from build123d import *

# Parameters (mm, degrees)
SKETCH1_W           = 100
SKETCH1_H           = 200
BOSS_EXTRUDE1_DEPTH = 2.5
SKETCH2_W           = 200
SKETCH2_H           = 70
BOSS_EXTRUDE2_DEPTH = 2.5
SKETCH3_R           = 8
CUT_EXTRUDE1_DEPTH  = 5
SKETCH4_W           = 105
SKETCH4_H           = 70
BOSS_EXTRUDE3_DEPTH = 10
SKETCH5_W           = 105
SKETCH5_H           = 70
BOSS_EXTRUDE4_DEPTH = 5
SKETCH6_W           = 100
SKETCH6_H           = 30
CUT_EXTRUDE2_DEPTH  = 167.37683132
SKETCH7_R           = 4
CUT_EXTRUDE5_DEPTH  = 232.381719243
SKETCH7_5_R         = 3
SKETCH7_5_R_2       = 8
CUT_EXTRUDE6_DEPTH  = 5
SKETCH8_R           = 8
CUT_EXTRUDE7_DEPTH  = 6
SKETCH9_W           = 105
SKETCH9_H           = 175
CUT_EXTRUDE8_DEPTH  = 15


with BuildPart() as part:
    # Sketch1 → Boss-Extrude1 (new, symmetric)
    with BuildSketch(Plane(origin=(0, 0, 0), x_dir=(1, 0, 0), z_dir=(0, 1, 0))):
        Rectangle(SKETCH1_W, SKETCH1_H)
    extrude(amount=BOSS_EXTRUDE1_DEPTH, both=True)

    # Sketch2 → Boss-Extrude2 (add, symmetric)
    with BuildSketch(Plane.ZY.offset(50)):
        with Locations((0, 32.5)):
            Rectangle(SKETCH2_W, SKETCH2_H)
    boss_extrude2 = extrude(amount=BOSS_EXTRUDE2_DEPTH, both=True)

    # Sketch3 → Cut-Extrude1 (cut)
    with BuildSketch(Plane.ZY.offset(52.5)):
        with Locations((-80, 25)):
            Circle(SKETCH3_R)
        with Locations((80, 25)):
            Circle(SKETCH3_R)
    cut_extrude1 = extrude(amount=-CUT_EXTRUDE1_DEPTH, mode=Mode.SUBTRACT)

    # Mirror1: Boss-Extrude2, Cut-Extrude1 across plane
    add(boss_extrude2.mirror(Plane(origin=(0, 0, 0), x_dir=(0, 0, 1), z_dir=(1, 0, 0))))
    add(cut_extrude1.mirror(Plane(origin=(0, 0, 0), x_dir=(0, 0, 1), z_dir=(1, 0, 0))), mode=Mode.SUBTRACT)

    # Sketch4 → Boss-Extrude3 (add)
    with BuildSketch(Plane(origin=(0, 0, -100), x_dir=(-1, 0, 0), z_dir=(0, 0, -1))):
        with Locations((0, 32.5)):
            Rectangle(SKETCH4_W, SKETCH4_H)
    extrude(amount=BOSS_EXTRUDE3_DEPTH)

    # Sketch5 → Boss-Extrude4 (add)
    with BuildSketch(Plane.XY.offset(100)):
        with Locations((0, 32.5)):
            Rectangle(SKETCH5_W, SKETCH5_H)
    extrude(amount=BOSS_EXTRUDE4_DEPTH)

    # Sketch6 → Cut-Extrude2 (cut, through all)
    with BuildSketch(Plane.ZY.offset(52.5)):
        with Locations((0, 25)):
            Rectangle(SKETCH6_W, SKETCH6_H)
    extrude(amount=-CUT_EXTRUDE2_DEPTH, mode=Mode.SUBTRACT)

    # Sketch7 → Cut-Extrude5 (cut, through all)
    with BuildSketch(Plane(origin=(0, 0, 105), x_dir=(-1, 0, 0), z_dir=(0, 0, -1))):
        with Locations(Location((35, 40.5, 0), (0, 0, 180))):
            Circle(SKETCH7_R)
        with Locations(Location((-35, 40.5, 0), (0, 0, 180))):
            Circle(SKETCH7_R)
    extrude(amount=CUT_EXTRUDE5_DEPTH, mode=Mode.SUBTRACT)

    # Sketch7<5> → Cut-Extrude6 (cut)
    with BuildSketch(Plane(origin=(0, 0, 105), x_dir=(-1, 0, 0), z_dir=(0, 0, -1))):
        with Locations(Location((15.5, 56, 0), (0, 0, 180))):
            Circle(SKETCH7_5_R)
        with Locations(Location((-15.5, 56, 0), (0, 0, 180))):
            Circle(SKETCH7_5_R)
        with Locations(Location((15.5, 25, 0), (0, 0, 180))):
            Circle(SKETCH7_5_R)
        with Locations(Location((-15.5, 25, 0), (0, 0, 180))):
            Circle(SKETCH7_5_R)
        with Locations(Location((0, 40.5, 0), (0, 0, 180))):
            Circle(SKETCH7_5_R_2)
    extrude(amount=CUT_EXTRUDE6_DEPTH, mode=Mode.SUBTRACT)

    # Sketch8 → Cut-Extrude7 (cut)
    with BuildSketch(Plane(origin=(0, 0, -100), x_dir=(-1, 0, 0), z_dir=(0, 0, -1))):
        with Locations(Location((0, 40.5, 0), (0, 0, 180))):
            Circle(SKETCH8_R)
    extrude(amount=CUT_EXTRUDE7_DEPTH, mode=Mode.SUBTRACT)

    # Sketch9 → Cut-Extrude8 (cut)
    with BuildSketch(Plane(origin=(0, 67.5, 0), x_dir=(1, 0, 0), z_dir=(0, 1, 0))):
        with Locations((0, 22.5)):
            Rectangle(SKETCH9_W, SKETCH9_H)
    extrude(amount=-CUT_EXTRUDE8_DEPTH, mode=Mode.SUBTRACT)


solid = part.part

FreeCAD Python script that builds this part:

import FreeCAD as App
import Part
import Sketcher
from FreeCAD import Vector

doc = App.newDocument("Part")
params = doc.addObject("Spreadsheet::Sheet", "Params")
for row, (alias, value) in enumerate([
    ("sketch1_width", "100 mm"),
    ("sketch1_height", "200 mm"),
    ("pad1_length", "5 mm"),
    ("sketch2_width", "70 mm"),
    ("sketch2_height", "200 mm"),
    ("pad2_length", "5 mm"),
    ("sketch3_diameter", "16 mm"),
    ("pocket1_length", "5 mm"),
    ("sketch4_width", "105 mm"),
    ("sketch4_height", "70 mm"),
    ("pad3_length", "10 mm"),
    ("sketch5_width", "105 mm"),
    ("sketch5_height", "70 mm"),
    ("pad4_length", "5 mm"),
    ("sketch6_width", "30 mm"),
    ("sketch6_height", "100 mm"),
    ("sketch7_diameter", "8 mm"),
    ("sketch8_diameter", "6 mm"),
    ("sketch8_diameter2", "16 mm"),
    ("pocket4_length", "5 mm"),
    ("sketch9_diameter", "16 mm"),
    ("pocket5_length", "6 mm"),
    ("sketch10_width", "105 mm"),
    ("sketch10_height", "175 mm"),
    ("pocket6_length", "15 mm"),
], start=1):
    params.set(f"A{row}", alias)
    params.set(f"B{row}", "=" + value)
    params.setAlias(f"B{row}", alias)

body = doc.addObject("PartDesign::Body", "Body")

# Sketch on XZ plane
sketch1 = doc.addObject("Sketcher::SketchObject", "Sketch")
body.addObject(sketch1)
sketch1.AttachmentSupport = (doc.XZ_Plane, [""])
sketch1.MapMode = "FlatFace"
sketch1.addGeometry(Part.LineSegment(Vector(-50, -100, 0), Vector(-50, 100, 0)), False)
sketch1.addGeometry(Part.LineSegment(Vector(-50, 100, 0), Vector(50, 100, 0)), False)
sketch1.addGeometry(Part.LineSegment(Vector(50, 100, 0), Vector(50, -100, 0)), False)
sketch1.addGeometry(Part.LineSegment(Vector(50, -100, 0), Vector(-50, -100, 0)), False)
sketch1.addConstraint(Sketcher.Constraint("Coincident", 0, 2, 1, 1))
sketch1.addConstraint(Sketcher.Constraint("Coincident", 1, 2, 2, 1))
sketch1.addConstraint(Sketcher.Constraint("Coincident", 2, 2, 3, 1))
sketch1.addConstraint(Sketcher.Constraint("Coincident", 3, 2, 0, 1))
sketch1.addConstraint(Sketcher.Constraint("Vertical", 0))
sketch1.addConstraint(Sketcher.Constraint("Horizontal", 1))
sketch1.addConstraint(Sketcher.Constraint("Vertical", 2))
sketch1.addConstraint(Sketcher.Constraint("Horizontal", 3))
sketch1.addConstraint(Sketcher.Constraint("Symmetric", 0, 2, 2, 2, -1, 1))
sketch1.addConstraint(Sketcher.Constraint("DistanceX", 1, 1, 1, 2, 100.0))
sketch1.addConstraint(Sketcher.Constraint("DistanceY", 0, 1, 0, 2, 200.0))
sketch1.setExpression("Constraints[9]", "Params.sketch1_width")
sketch1.setExpression("Constraints[10]", "Params.sketch1_height")
pad1 = doc.addObject("PartDesign::Pad", "Pad")
body.addObject(pad1)
pad1.Profile = sketch1
pad1.setExpression("Length", "Params.pad1_length")
pad1.Midplane = True

# Sketch on YZ plane
sketch2 = doc.addObject("Sketcher::SketchObject", "Sketch001")
body.addObject(sketch2)
sketch2.AttachmentSupport = (doc.YZ_Plane, [""])
sketch2.MapMode = "FlatFace"
sketch2.AttachmentOffset = App.Placement(Vector(0, 0, -50), App.Rotation())
sketch2.addGeometry(Part.LineSegment(Vector(68, -100, 0), Vector(-2, -100, 0)), False)
sketch2.addGeometry(Part.LineSegment(Vector(-2, -100, 0), Vector(-2, 100, 0)), False)
sketch2.addGeometry(Part.LineSegment(Vector(-2, 100, 0), Vector(68, 100, 0)), False)
sketch2.addGeometry(Part.LineSegment(Vector(68, 100, 0), Vector(68, -100, 0)), False)
sketch2.addConstraint(Sketcher.Constraint("Coincident", 0, 2, 1, 1))
sketch2.addConstraint(Sketcher.Constraint("Coincident", 1, 2, 2, 1))
sketch2.addConstraint(Sketcher.Constraint("Coincident", 2, 2, 3, 1))
sketch2.addConstraint(Sketcher.Constraint("Coincident", 3, 2, 0, 1))
sketch2.addConstraint(Sketcher.Constraint("Horizontal", 0))
sketch2.addConstraint(Sketcher.Constraint("Vertical", 1))
sketch2.addConstraint(Sketcher.Constraint("Horizontal", 2))
sketch2.addConstraint(Sketcher.Constraint("Vertical", 3))
sketch2.addConstraint(Sketcher.Constraint("DistanceX", 0, 2, 0, 1, 70.0))
sketch2.addConstraint(Sketcher.Constraint("DistanceY", 1, 1, 1, 2, 200.0))
sketch2.addConstraint(Sketcher.Constraint("DistanceY", 0, 2, -1, 1, 100.0))
sketch2.addConstraint(Sketcher.Constraint("DistanceX", 0, 2, -1, 1, 2.5))
sketch2.setExpression("Constraints[8]", "Params.sketch2_width")
sketch2.setExpression("Constraints[9]", "Params.sketch2_height")
pad2 = doc.addObject("PartDesign::Pad", "Pad001")
body.addObject(pad2)
pad2.Profile = sketch2
pad2.setExpression("Length", "Params.pad2_length")
pad2.Midplane = True

# Sketch on YZ plane
sketch3 = doc.addObject("Sketcher::SketchObject", "Sketch002")
body.addObject(sketch3)
sketch3.AttachmentSupport = (doc.YZ_Plane, [""])
sketch3.MapMode = "FlatFace"
sketch3.AttachmentOffset = App.Placement(Vector(0, 0, -52.5), App.Rotation())
sketch3.addGeometry(Part.Circle(Vector(25, -80, 0), Vector(0, 0, 1), 8), False)
sketch3.addGeometry(Part.Circle(Vector(25, 80, 0), Vector(0, 0, 1), 8), False)
sketch3.addConstraint(Sketcher.Constraint("Equal", 0, 1))
sketch3.addConstraint(Sketcher.Constraint("Symmetric", 0, 3, 1, 3, -1))
sketch3.addConstraint(Sketcher.Constraint("Diameter", 0, 16.0))
sketch3.addConstraint(Sketcher.Constraint("DistanceX", -1, 1, 0, 3, 25.0))
sketch3.addConstraint(Sketcher.Constraint("DistanceY", 0, 3, -1, 1, 80.0))
sketch3.setExpression("Constraints[2]", "Params.sketch3_diameter")
pocket1 = doc.addObject("PartDesign::Pocket", "Pocket")
body.addObject(pocket1)
pocket1.Profile = sketch3
pocket1.setExpression("Length", "Params.pocket1_length")
pocket1.Reversed = True
doc.recompute()

mirrored = doc.addObject("PartDesign::Mirrored", "Mirrored")
body.addObject(mirrored)
mirrored.Originals = [pad2, pocket1]
mirrored.MirrorPlane = (doc.YZ_Plane, [""])
body.Tip = mirrored

# Sketch on XY plane
sketch4 = doc.addObject("Sketcher::SketchObject", "Sketch003")
body.addObject(sketch4)
sketch4.AttachmentSupport = (doc.XY_Plane, [""])
sketch4.MapMode = "FlatFace"
sketch4.AttachmentOffset = App.Placement(Vector(0, 0, -100), App.Rotation())
sketch4.addGeometry(Part.LineSegment(Vector(52, 68, 0), Vector(52, -2, 0)), False)
sketch4.addGeometry(Part.LineSegment(Vector(52, -2, 0), Vector(-52, -2, 0)), False)
sketch4.addGeometry(Part.LineSegment(Vector(-52, -2, 0), Vector(-52, 68, 0)), False)
sketch4.addGeometry(Part.LineSegment(Vector(-52, 68, 0), Vector(52, 68, 0)), False)
sketch4.addConstraint(Sketcher.Constraint("Coincident", 0, 2, 1, 1))
sketch4.addConstraint(Sketcher.Constraint("Coincident", 1, 2, 2, 1))
sketch4.addConstraint(Sketcher.Constraint("Coincident", 2, 2, 3, 1))
sketch4.addConstraint(Sketcher.Constraint("Coincident", 3, 2, 0, 1))
sketch4.addConstraint(Sketcher.Constraint("Vertical", 0))
sketch4.addConstraint(Sketcher.Constraint("Horizontal", 1))
sketch4.addConstraint(Sketcher.Constraint("Vertical", 2))
sketch4.addConstraint(Sketcher.Constraint("Horizontal", 3))
sketch4.addConstraint(Sketcher.Constraint("DistanceX", 1, 2, 1, 1, 105.0))
sketch4.addConstraint(Sketcher.Constraint("DistanceY", 0, 2, 0, 1, 70.0))
sketch4.addConstraint(Sketcher.Constraint("DistanceX", -1, 1, 0, 2, 52.5))
sketch4.addConstraint(Sketcher.Constraint("DistanceY", 0, 2, -1, 1, 2.5))
sketch4.setExpression("Constraints[8]", "Params.sketch4_width")
sketch4.setExpression("Constraints[9]", "Params.sketch4_height")
pad3 = doc.addObject("PartDesign::Pad", "Pad002")
body.addObject(pad3)
pad3.Profile = sketch4
pad3.setExpression("Length", "Params.pad3_length")
pad3.Reversed = True

# Sketch on XY plane
sketch5 = doc.addObject("Sketcher::SketchObject", "Sketch004")
body.addObject(sketch5)
sketch5.AttachmentSupport = (doc.XY_Plane, [""])
sketch5.MapMode = "FlatFace"
sketch5.AttachmentOffset = App.Placement(Vector(0, 0, 100), App.Rotation())
sketch5.addGeometry(Part.LineSegment(Vector(-52, 68, 0), Vector(-52, -2, 0)), False)
sketch5.addGeometry(Part.LineSegment(Vector(-52, -2, 0), Vector(52, -2, 0)), False)
sketch5.addGeometry(Part.LineSegment(Vector(52, -2, 0), Vector(52, 68, 0)), False)
sketch5.addGeometry(Part.LineSegment(Vector(52, 68, 0), Vector(-52, 68, 0)), False)
sketch5.addConstraint(Sketcher.Constraint("Coincident", 0, 2, 1, 1))
sketch5.addConstraint(Sketcher.Constraint("Coincident", 1, 2, 2, 1))
sketch5.addConstraint(Sketcher.Constraint("Coincident", 2, 2, 3, 1))
sketch5.addConstraint(Sketcher.Constraint("Coincident", 3, 2, 0, 1))
sketch5.addConstraint(Sketcher.Constraint("Vertical", 0))
sketch5.addConstraint(Sketcher.Constraint("Horizontal", 1))
sketch5.addConstraint(Sketcher.Constraint("Vertical", 2))
sketch5.addConstraint(Sketcher.Constraint("Horizontal", 3))
sketch5.addConstraint(Sketcher.Constraint("DistanceX", 1, 1, 1, 2, 105.0))
sketch5.addConstraint(Sketcher.Constraint("DistanceY", 0, 2, 0, 1, 70.0))
sketch5.addConstraint(Sketcher.Constraint("DistanceX", 0, 2, -1, 1, 52.5))
sketch5.addConstraint(Sketcher.Constraint("DistanceY", 0, 2, -1, 1, 2.5))
sketch5.setExpression("Constraints[8]", "Params.sketch5_width")
sketch5.setExpression("Constraints[9]", "Params.sketch5_height")
pad4 = doc.addObject("PartDesign::Pad", "Pad003")
body.addObject(pad4)
pad4.Profile = sketch5
pad4.setExpression("Length", "Params.pad4_length")

# Sketch on YZ plane
sketch6 = doc.addObject("Sketcher::SketchObject", "Sketch005")
body.addObject(sketch6)
sketch6.AttachmentSupport = (doc.YZ_Plane, [""])
sketch6.MapMode = "FlatFace"
sketch6.AttachmentOffset = App.Placement(Vector(0, 0, -52.5), App.Rotation())
sketch6.addGeometry(Part.LineSegment(Vector(40, -50, 0), Vector(10, -50, 0)), False)
sketch6.addGeometry(Part.LineSegment(Vector(10, -50, 0), Vector(10, 50, 0)), False)
sketch6.addGeometry(Part.LineSegment(Vector(10, 50, 0), Vector(40, 50, 0)), False)
sketch6.addGeometry(Part.LineSegment(Vector(40, 50, 0), Vector(40, -50, 0)), False)
sketch6.addConstraint(Sketcher.Constraint("Coincident", 0, 2, 1, 1))
sketch6.addConstraint(Sketcher.Constraint("Coincident", 1, 2, 2, 1))
sketch6.addConstraint(Sketcher.Constraint("Coincident", 2, 2, 3, 1))
sketch6.addConstraint(Sketcher.Constraint("Coincident", 3, 2, 0, 1))
sketch6.addConstraint(Sketcher.Constraint("Horizontal", 0))
sketch6.addConstraint(Sketcher.Constraint("Vertical", 1))
sketch6.addConstraint(Sketcher.Constraint("Horizontal", 2))
sketch6.addConstraint(Sketcher.Constraint("Vertical", 3))
sketch6.addConstraint(Sketcher.Constraint("DistanceX", 0, 2, 0, 1, 30.0))
sketch6.addConstraint(Sketcher.Constraint("DistanceY", 1, 1, 1, 2, 100.0))
sketch6.addConstraint(Sketcher.Constraint("DistanceX", -1, 1, 0, 2, 10.0))
sketch6.addConstraint(Sketcher.Constraint("DistanceY", 0, 2, -1, 1, 50.0))
sketch6.setExpression("Constraints[8]", "Params.sketch6_width")
sketch6.setExpression("Constraints[9]", "Params.sketch6_height")
pocket2 = doc.addObject("PartDesign::Pocket", "Pocket001")
body.addObject(pocket2)
pocket2.Profile = sketch6
pocket2.Type = "ThroughAll"
pocket2.Reversed = True

# Sketch on XY plane
sketch7 = doc.addObject("Sketcher::SketchObject", "Sketch006")
body.addObject(sketch7)
sketch7.AttachmentSupport = (doc.XY_Plane, [""])
sketch7.MapMode = "FlatFace"
sketch7.AttachmentOffset = App.Placement(Vector(0, 0, 105), App.Rotation())
sketch7.addGeometry(Part.Circle(Vector(-35, 40.5, 0), Vector(0, 0, 1), 4), False)
sketch7.addGeometry(Part.Circle(Vector(35, 40.5, 0), Vector(0, 0, 1), 4), False)
sketch7.addConstraint(Sketcher.Constraint("Equal", 0, 1))
sketch7.addConstraint(Sketcher.Constraint("Symmetric", 0, 3, 1, 3, -2))
sketch7.addConstraint(Sketcher.Constraint("Diameter", 0, 8.0))
sketch7.addConstraint(Sketcher.Constraint("DistanceX", 0, 3, -1, 1, 35.0))
sketch7.addConstraint(Sketcher.Constraint("DistanceY", -1, 1, 0, 3, 40.5))
sketch7.setExpression("Constraints[2]", "Params.sketch7_diameter")
pocket3 = doc.addObject("PartDesign::Pocket", "Pocket002")
body.addObject(pocket3)
pocket3.Profile = sketch7
pocket3.Type = "ThroughAll"

# Sketch on XY plane
sketch8 = doc.addObject("Sketcher::SketchObject", "Sketch007")
body.addObject(sketch8)
sketch8.AttachmentSupport = (doc.XY_Plane, [""])
sketch8.MapMode = "FlatFace"
sketch8.AttachmentOffset = App.Placement(Vector(0, 0, 105), App.Rotation())
sketch8.addGeometry(Part.Circle(Vector(-15.5, 56, 0), Vector(0, 0, 1), 3), False)
sketch8.addGeometry(Part.Circle(Vector(15.5, 56, 0), Vector(0, 0, 1), 3), False)
sketch8.addGeometry(Part.Circle(Vector(-15.5, 25, 0), Vector(0, 0, 1), 3), False)
sketch8.addGeometry(Part.Circle(Vector(15.5, 25, 0), Vector(0, 0, 1), 3), False)
sketch8.addGeometry(Part.Circle(Vector(0, 40.5, 0), Vector(0, 0, 1), 8), False)
sketch8.addConstraint(Sketcher.Constraint("Equal", 0, 1))
sketch8.addConstraint(Sketcher.Constraint("Equal", 1, 2))
sketch8.addConstraint(Sketcher.Constraint("Equal", 2, 3))
sketch8.addConstraint(Sketcher.Constraint("Symmetric", 0, 3, 1, 3, -2))
sketch8.addConstraint(Sketcher.Constraint("Symmetric", 2, 3, 3, 3, -2))
sketch8.addConstraint(Sketcher.Constraint("PointOnObject", 4, 3, -2))
sketch8.addConstraint(Sketcher.Constraint("Vertical", 0, 3, 2, 3))
sketch8.addConstraint(Sketcher.Constraint("Diameter", 0, 6.0))
sketch8.addConstraint(Sketcher.Constraint("Diameter", 4, 16.0))
sketch8.addConstraint(Sketcher.Constraint("DistanceY", -1, 1, 0, 3, 56.0))
sketch8.addConstraint(Sketcher.Constraint("DistanceY", -1, 1, 2, 3, 25.0))
sketch8.addConstraint(Sketcher.Constraint("DistanceX", 0, 3, 1, 3, 31.0))
sketch8.addConstraint(Sketcher.Constraint("DistanceY", -1, 1, 4, 3, 40.5))
sketch8.setExpression("Constraints[7]", "Params.sketch8_diameter")
sketch8.setExpression("Constraints[8]", "Params.sketch8_diameter2")
pocket4 = doc.addObject("PartDesign::Pocket", "Pocket003")
body.addObject(pocket4)
pocket4.Profile = sketch8
pocket4.setExpression("Length", "Params.pocket4_length")

# Sketch on XY plane
sketch9 = doc.addObject("Sketcher::SketchObject", "Sketch008")
body.addObject(sketch9)
sketch9.AttachmentSupport = (doc.XY_Plane, [""])
sketch9.MapMode = "FlatFace"
sketch9.AttachmentOffset = App.Placement(Vector(0, 0, -100), App.Rotation())
sketch9.addGeometry(Part.Circle(Vector(0, 40, 0), Vector(0, 0, 1), 8), False)
sketch9.addConstraint(Sketcher.Constraint("PointOnObject", 0, 3, -2))
sketch9.addConstraint(Sketcher.Constraint("Diameter", 0, 16.0))
sketch9.addConstraint(Sketcher.Constraint("DistanceY", -1, 1, 0, 3, 40.5))
sketch9.setExpression("Constraints[1]", "Params.sketch9_diameter")
pocket5 = doc.addObject("PartDesign::Pocket", "Pocket004")
body.addObject(pocket5)
pocket5.Profile = sketch9
pocket5.setExpression("Length", "Params.pocket5_length")

# Sketch on XZ plane
sketch10 = doc.addObject("Sketcher::SketchObject", "Sketch009")
body.addObject(sketch10)
sketch10.AttachmentSupport = (doc.XZ_Plane, [""])
sketch10.MapMode = "FlatFace"
sketch10.AttachmentOffset = App.Placement(Vector(0, 0, -67.5), App.Rotation())
sketch10.addGeometry(Part.LineSegment(Vector(-52, -110, 0), Vector(-52, 65, 0)), False)
sketch10.addGeometry(Part.LineSegment(Vector(-52, 65, 0), Vector(52, 65, 0)), False)
sketch10.addGeometry(Part.LineSegment(Vector(52, 65, 0), Vector(52, -110, 0)), False)
sketch10.addGeometry(Part.LineSegment(Vector(52, -110, 0), Vector(-52, -110, 0)), False)
sketch10.addConstraint(Sketcher.Constraint("Coincident", 0, 2, 1, 1))
sketch10.addConstraint(Sketcher.Constraint("Coincident", 1, 2, 2, 1))
sketch10.addConstraint(Sketcher.Constraint("Coincident", 2, 2, 3, 1))
sketch10.addConstraint(Sketcher.Constraint("Coincident", 3, 2, 0, 1))
sketch10.addConstraint(Sketcher.Constraint("Vertical", 0))
sketch10.addConstraint(Sketcher.Constraint("Horizontal", 1))
sketch10.addConstraint(Sketcher.Constraint("Vertical", 2))
sketch10.addConstraint(Sketcher.Constraint("Horizontal", 3))
sketch10.addConstraint(Sketcher.Constraint("DistanceX", 1, 1, 1, 2, 105.0))
sketch10.addConstraint(Sketcher.Constraint("DistanceY", 0, 1, 0, 2, 175.0))
sketch10.addConstraint(Sketcher.Constraint("DistanceY", -1, 1, 0, 2, 65.0))
sketch10.addConstraint(Sketcher.Constraint("DistanceX", 0, 2, -1, 1, 52.5))
sketch10.setExpression("Constraints[8]", "Params.sketch10_width")
sketch10.setExpression("Constraints[9]", "Params.sketch10_height")
pocket6 = doc.addObject("PartDesign::Pocket", "Pocket005")
body.addObject(pocket6)
pocket6.Profile = sketch10
pocket6.setExpression("Length", "Params.pocket6_length")
pocket6.Reversed = True

doc.recompute()
